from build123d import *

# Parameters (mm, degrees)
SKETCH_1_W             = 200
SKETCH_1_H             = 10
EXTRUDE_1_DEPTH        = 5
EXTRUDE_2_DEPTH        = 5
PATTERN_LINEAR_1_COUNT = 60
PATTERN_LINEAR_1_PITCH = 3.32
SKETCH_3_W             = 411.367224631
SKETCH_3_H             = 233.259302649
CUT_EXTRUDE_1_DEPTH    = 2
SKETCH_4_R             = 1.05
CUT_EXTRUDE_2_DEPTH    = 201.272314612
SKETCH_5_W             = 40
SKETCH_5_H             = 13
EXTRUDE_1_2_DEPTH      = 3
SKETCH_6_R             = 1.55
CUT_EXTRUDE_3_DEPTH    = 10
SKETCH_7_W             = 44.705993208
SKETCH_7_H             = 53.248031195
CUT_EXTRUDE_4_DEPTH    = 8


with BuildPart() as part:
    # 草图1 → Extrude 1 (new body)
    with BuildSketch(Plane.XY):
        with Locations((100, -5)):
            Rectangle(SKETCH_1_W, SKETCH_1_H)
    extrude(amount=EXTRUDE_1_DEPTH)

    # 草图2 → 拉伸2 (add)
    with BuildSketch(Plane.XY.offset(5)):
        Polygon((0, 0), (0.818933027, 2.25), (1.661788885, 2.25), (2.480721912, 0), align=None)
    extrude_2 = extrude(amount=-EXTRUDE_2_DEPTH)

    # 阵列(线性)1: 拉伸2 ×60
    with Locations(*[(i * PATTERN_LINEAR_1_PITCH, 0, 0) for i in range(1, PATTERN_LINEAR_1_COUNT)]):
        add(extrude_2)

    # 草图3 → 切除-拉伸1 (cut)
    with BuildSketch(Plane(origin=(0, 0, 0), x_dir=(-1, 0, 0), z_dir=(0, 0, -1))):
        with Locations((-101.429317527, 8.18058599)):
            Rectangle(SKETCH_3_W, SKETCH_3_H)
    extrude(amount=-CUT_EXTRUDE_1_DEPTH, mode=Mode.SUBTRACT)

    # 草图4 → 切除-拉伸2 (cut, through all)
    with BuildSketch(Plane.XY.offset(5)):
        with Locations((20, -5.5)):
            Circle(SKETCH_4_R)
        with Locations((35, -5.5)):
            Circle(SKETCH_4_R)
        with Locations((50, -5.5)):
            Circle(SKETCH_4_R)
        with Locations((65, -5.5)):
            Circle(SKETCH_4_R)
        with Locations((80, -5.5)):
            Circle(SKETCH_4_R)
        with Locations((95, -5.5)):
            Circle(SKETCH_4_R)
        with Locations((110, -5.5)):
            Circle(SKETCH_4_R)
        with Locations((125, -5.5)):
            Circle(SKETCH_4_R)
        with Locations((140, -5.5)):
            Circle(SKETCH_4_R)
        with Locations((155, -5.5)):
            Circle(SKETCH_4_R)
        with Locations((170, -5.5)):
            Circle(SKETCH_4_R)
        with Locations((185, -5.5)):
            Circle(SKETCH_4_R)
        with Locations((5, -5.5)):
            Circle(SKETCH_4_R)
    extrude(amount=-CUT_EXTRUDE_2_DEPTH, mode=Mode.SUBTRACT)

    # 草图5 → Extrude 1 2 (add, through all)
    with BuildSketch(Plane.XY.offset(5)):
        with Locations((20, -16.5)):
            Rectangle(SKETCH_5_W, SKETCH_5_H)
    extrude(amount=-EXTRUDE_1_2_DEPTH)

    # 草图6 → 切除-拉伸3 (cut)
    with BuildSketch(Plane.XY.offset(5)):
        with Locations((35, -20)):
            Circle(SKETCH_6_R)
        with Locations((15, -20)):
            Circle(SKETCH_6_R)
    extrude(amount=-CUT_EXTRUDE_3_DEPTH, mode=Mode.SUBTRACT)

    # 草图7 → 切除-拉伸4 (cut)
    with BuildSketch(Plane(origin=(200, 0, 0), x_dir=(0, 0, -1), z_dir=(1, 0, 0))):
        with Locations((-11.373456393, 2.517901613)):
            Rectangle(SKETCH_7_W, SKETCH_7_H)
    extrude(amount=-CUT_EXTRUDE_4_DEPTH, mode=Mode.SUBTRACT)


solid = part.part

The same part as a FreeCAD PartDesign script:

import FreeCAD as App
import Part
import Sketcher
Q = App.Units.Quantity


def add_polygon(sketch, points):
    """Adds a closed chain of lines whose ends are joined by coincident constraints."""
    first, n = sketch.GeometryCount, len(points)
    for a, b in zip(points, points[1:] + points[:1]):
        sketch.addGeometry(Part.LineSegment(App.Vector(*a, 0), App.Vector(*b, 0)), False)
    for i in range(n):
        sketch.addConstraint(Sketcher.Constraint("Coincident", first + i, 2, first + (i + 1) % n, 1))

doc = App.newDocument("Part")
body = doc.addObject("PartDesign::Body", "Body")

sketch1 = body.newObject("Sketcher::SketchObject", "Sketch")
sketch1.AttachmentSupport = (doc.getObject("XY_Plane"), [""])
sketch1.MapMode = "FlatFace"
add_polygon(sketch1, [(0, 0), (0, -10), (200, -10), (200, 0)])
sketch1.addConstraint([
    Sketcher.Constraint("Vertical", 0),
    Sketcher.Constraint("Horizontal", 1),
    Sketcher.Constraint("Vertical", 2),
    Sketcher.Constraint("Horizontal", 3),
    Sketcher.Constraint("Coincident", 3, 2, -1, 1),
    Sketcher.Constraint("DistanceX", 1, 1, 1, 2, Q("200 mm")),
    Sketcher.Constraint("DistanceY", 0, 2, 0, 1, Q("10 mm")),
])
pad1 = body.newObject("PartDesign::Pad", "Pad")
pad1.Profile = sketch1
pad1.Length = 5

sketch2 = body.newObject("Sketcher::SketchObject", "Sketch001")
sketch2.AttachmentSupport = (doc.getObject("XY_Plane"), [""])
sketch2.MapMode = "FlatFace"
sketch2.AttachmentOffset = App.Placement(App.Vector(0, 0, 5), App.Rotation())
add_polygon(sketch2, [(0.8, 2.2), (0, 0), (2.5, 0), (1.7, 2.2)])
sketch2.addConstraint([
    Sketcher.Constraint("Horizontal", 1),
    Sketcher.Constraint("Horizontal", 3),
    Sketcher.Constraint("Coincident", 0, 2, -1, 1),
    Sketcher.Constraint("Equal", 0, 2),
    Sketcher.Constraint("Angle", 0, Q("-110 deg")),
    Sketcher.Constraint("DistanceY", -1, 1, 2, 2, Q("2.25 mm")),
    Sketcher.Constraint("DistanceX", 1, 1, 1, 2, Q("2.480722 mm")),
])
pad2 = body.newObject("PartDesign::Pad", "Pad001")
pad2.Profile = sketch2
pad2.Length = 5
pad2.Reversed = True
doc.recompute()

linearpattern = body.newObject("PartDesign::LinearPattern", "LinearPattern")
linearpattern.Originals = [pad2]
linearpattern.Direction = (doc.getObject("X_Axis"), [""])
linearpattern.Mode = "offset"
linearpattern.Offset = 3.32
linearpattern.Occurrences = 60
body.Tip = linearpattern

sketch3 = body.newObject("Sketcher::SketchObject", "Sketch002")
sketch3.AttachmentSupport = (doc.getObject("XY_Plane"), [""])
sketch3.MapMode = "FlatFace"
add_polygon(sketch3, [(307, 125), (307, -108), (-104, -108), (-104, 125)])
sketch3.addConstraint([
    Sketcher.Constraint("Vertical", 0),
    Sketcher.Constraint("Horizontal", 1),
    Sketcher.Constraint("Vertical", 2),
    Sketcher.Constraint("Horizontal", 3),
    Sketcher.Constraint("DistanceX", 1, 2, 1, 1, Q("411.367225 mm")),
    Sketcher.Constraint("DistanceY", 0, 2, 0, 1, Q("233.259303 mm")),
    Sketcher.Constraint("DistanceX", -1, 1, 0, 2, Q("307.11293 mm")),
    Sketcher.Constraint("DistanceY", 0, 2, -1, 1, Q("108.449065 mm")),
])
pocket1 = body.newObject("PartDesign::Pocket", "Pocket")
pocket1.Profile = sketch3
pocket1.Length = 2
pocket1.Reversed = True

sketch4 = body.newObject("Sketcher::SketchObject", "Sketch003")
sketch4.AttachmentSupport = (doc.getObject("XY_Plane"), [""])
sketch4.MapMode = "FlatFace"
sketch4.AttachmentOffset = App.Placement(App.Vector(0, 0, 5), App.Rotation())
sketch4.addGeometry([
    Part.Circle(App.Vector(20, -5.5, 0), App.Vector(0, 0, 1), 1.1),
    Part.Circle(App.Vector(35, -5.5, 0), App.Vector(0, 0, 1), 1.1),
    Part.Circle(App.Vector(50, -5.5, 0), App.Vector(0, 0, 1), 1.1),
    Part.Circle(App.Vector(65, -5.5, 0), App.Vector(0, 0, 1), 1.1),
    Part.Circle(App.Vector(80, -5.5, 0), App.Vector(0, 0, 1), 1.1),
    Part.Circle(App.Vector(95, -5.5, 0), App.Vector(0, 0, 1), 1.1),
    Part.Circle(App.Vector(110, -5.5, 0), App.Vector(0, 0, 1), 1.1),
    Part.Circle(App.Vector(125, -5.5, 0), App.Vector(0, 0, 1), 1.1),
    Part.Circle(App.Vector(140, -5.5, 0), App.Vector(0, 0, 1), 1.1),
    Part.Circle(App.Vector(155, -5.5, 0), App.Vector(0, 0, 1), 1.1),
    Part.Circle(App.Vector(170, -5.5, 0), App.Vector(0, 0, 1), 1.1),
    Part.Circle(App.Vector(185, -5.5, 0), App.Vector(0, 0, 1), 1.1),
    Part.Circle(App.Vector(5, -5.5, 0), App.Vector(0, 0, 1), 1.1),
], False)
sketch4.addConstraint([
    Sketcher.Constraint("Equal", 0, 1),
    Sketcher.Constraint("Equal", 1, 2),
    Sketcher.Constraint("Equal", 2, 3),
    Sketcher.Constraint("Equal", 3, 4),
    Sketcher.Constraint("Equal", 4, 5),
    Sketcher.Constraint("Equal", 5, 6),
    Sketcher.Constraint("Equal", 6, 7),
    Sketcher.Constraint("Equal", 7, 8),
    Sketcher.Constraint("Equal", 8, 9),
    Sketcher.Constraint("Equal", 9, 10),
    Sketcher.Constraint("Equal", 10, 11),
    Sketcher.Constraint("Equal", 11, 12),
    Sketcher.Constraint("Horizontal", 0, 3, 1, 3),
    Sketcher.Constraint("Horizontal", 1, 3, 2, 3),
    Sketcher.Constraint("Horizontal", 2, 3, 3, 3),
    Sketcher.Constraint("Horizontal", 3, 3, 4, 3),
    Sketcher.Constraint("Horizontal", 4, 3, 5, 3),
    Sketcher.Constraint("Horizontal", 5, 3, 6, 3),
    Sketcher.Constraint("Horizontal", 6, 3, 7, 3),
    Sketcher.Constraint("Horizontal", 7, 3, 8, 3),
    Sketcher.Constraint("Horizontal", 8, 3, 9, 3),
    Sketcher.Constraint("Horizontal", 9, 3, 10, 3),
    Sketcher.Constraint("Horizontal", 10, 3, 11, 3),
    Sketcher.Constraint("Horizontal", 11, 3, 12, 3),
    Sketcher.Constraint("Diameter", 0, Q("2.1 mm")),
    Sketcher.Constraint("DistanceX", -1, 1, 0, 3, Q("20 mm")),
    Sketcher.Constraint("DistanceX", -1, 1, 1, 3, Q("35 mm")),
    Sketcher.Constraint("DistanceX", -1, 1, 2, 3, Q("50 mm")),
    Sketcher.Constraint("DistanceX", -1, 1, 3, 3, Q("65 mm")),
    Sketcher.Constraint("DistanceX", -1, 1, 4, 3, Q("80 mm")),
    Sketcher.Constraint("DistanceX", -1, 1, 5, 3, Q("95 mm")),
    Sketcher.Constraint("DistanceX", -1, 1, 6, 3, Q("110 mm")),
    Sketcher.Constraint("DistanceX", -1, 1, 7, 3, Q("125 mm")),
    Sketcher.Constraint("DistanceX", -1, 1, 8, 3, Q("140 mm")),
    Sketcher.Constraint("DistanceX", -1, 1, 9, 3, Q("155 mm")),
    Sketcher.Constraint("DistanceX", -1, 1, 10, 3, Q("170 mm")),
    Sketcher.Constraint("DistanceX", -1, 1, 11, 3, Q("185 mm")),
    Sketcher.Constraint("DistanceX", -1, 1, 12, 3, Q("5 mm")),
    Sketcher.Constraint("DistanceY", 0, 3, -1, 1, Q("5.5 mm")),
])
pocket2 = body.newObject("PartDesign::Pocket", "Pocket001")
pocket2.Profile = sketch4
pocket2.Type = "ThroughAll"

sketch5 = body.newObject("Sketcher::SketchObject", "Sketch004")
sketch5.AttachmentSupport = (doc.getObject("XY_Plane"), [""])
sketch5.MapMode = "FlatFace"
sketch5.AttachmentOffset = App.Placement(App.Vector(0, 0, 5), App.Rotation())
add_polygon(sketch5, [(0, -10), (0, -23), (40, -23), (40, -10)])
sketch5.addConstraint([
    Sketcher.Constraint("Vertical", 0),
    Sketcher.Constraint("Horizontal", 1),
    Sketcher.Constraint("Vertical", 2),
    Sketcher.Constraint("Horizontal", 3),
    Sketcher.Constraint("PointOnObject", 0, 2, -2),
    Sketcher.Constraint("DistanceX", 1, 1, 1, 2, Q("40 mm")),
    Sketcher.Constraint("DistanceY", 0, 2, 0, 1, Q("13 mm")),
    Sketcher.Constraint("DistanceY", 0, 2, -1, 1, Q("23 mm")),
])
pad3 = body.newObject("PartDesign::Pad", "Pad002")
pad3.Profile = sketch5
pad3.Length = 3
pad3.Reversed = True

sketch6 = body.newObject("Sketcher::SketchObject", "Sketch005")
sketch6.AttachmentSupport = (doc.getObject("XY_Plane"), [""])
sketch6.MapMode = "FlatFace"
sketch6.AttachmentOffset = App.Placement(App.Vector(0, 0, 5), App.Rotation())
sketch6.addGeometry([
    Part.Circle(App.Vector(35, -20, 0), App.Vector(0, 0, 1), 1.6),
    Part.Circle(App.Vector(15, -20, 0), App.Vector(0, 0, 1), 1.6),
], False)
sketch6.addConstraint([
    Sketcher.Constraint("Equal", 0, 1),
    Sketcher.Constraint("Horizontal", 0, 3, 1, 3),
    Sketcher.Constraint("Diameter", 0, Q("3.1 mm")),
    Sketcher.Constraint("DistanceX", -1, 1, 0, 3, Q("35 mm")),
    Sketcher.Constraint("DistanceY", 0, 3, -1, 1, Q("20 mm")),
    Sketcher.Constraint("DistanceX", -1, 1, 1, 3, Q("15 mm")),
])
pocket3 = body.newObject("PartDesign::Pocket", "Pocket002")
pocket3.Profile = sketch6
pocket3.Length = 10

sketch7 = body.newObject("Sketcher::SketchObject", "Sketch006")
sketch7.AttachmentSupport = (doc.getObject("YZ_Plane"), [""])
sketch7.MapMode = "FlatFace"
sketch7.AttachmentOffset = App.Placement(App.Vector(0, 0, 200), App.Rotation())
add_polygon(sketch7, [(29, 34), (-24, 34), (-24, -11), (29, -11)])
sketch7.addConstraint([
    Sketcher.Constraint("Horizontal", 0),
    Sketcher.Constraint("Vertical", 1),
    Sketcher.Constraint("Horizontal", 2),
    Sketcher.Constraint("Vertical", 3),
    Sketcher.Constraint("DistanceX", 0, 2, 0, 1, Q("53.248031 mm")),
    Sketcher.Constraint("DistanceY", 1, 2, 1, 1, Q("44.705993 mm")),
    Sketcher.Constraint("DistanceY", 1, 2, -1, 1, Q("10.97954 mm")),
    Sketcher.Constraint("DistanceX", 0, 2, -1, 1, Q("24.106114 mm")),
])
pocket4 = body.newObject("PartDesign::Pocket", "Pocket003")
pocket4.Profile = sketch7
pocket4.Length = 8

doc.recompute()
